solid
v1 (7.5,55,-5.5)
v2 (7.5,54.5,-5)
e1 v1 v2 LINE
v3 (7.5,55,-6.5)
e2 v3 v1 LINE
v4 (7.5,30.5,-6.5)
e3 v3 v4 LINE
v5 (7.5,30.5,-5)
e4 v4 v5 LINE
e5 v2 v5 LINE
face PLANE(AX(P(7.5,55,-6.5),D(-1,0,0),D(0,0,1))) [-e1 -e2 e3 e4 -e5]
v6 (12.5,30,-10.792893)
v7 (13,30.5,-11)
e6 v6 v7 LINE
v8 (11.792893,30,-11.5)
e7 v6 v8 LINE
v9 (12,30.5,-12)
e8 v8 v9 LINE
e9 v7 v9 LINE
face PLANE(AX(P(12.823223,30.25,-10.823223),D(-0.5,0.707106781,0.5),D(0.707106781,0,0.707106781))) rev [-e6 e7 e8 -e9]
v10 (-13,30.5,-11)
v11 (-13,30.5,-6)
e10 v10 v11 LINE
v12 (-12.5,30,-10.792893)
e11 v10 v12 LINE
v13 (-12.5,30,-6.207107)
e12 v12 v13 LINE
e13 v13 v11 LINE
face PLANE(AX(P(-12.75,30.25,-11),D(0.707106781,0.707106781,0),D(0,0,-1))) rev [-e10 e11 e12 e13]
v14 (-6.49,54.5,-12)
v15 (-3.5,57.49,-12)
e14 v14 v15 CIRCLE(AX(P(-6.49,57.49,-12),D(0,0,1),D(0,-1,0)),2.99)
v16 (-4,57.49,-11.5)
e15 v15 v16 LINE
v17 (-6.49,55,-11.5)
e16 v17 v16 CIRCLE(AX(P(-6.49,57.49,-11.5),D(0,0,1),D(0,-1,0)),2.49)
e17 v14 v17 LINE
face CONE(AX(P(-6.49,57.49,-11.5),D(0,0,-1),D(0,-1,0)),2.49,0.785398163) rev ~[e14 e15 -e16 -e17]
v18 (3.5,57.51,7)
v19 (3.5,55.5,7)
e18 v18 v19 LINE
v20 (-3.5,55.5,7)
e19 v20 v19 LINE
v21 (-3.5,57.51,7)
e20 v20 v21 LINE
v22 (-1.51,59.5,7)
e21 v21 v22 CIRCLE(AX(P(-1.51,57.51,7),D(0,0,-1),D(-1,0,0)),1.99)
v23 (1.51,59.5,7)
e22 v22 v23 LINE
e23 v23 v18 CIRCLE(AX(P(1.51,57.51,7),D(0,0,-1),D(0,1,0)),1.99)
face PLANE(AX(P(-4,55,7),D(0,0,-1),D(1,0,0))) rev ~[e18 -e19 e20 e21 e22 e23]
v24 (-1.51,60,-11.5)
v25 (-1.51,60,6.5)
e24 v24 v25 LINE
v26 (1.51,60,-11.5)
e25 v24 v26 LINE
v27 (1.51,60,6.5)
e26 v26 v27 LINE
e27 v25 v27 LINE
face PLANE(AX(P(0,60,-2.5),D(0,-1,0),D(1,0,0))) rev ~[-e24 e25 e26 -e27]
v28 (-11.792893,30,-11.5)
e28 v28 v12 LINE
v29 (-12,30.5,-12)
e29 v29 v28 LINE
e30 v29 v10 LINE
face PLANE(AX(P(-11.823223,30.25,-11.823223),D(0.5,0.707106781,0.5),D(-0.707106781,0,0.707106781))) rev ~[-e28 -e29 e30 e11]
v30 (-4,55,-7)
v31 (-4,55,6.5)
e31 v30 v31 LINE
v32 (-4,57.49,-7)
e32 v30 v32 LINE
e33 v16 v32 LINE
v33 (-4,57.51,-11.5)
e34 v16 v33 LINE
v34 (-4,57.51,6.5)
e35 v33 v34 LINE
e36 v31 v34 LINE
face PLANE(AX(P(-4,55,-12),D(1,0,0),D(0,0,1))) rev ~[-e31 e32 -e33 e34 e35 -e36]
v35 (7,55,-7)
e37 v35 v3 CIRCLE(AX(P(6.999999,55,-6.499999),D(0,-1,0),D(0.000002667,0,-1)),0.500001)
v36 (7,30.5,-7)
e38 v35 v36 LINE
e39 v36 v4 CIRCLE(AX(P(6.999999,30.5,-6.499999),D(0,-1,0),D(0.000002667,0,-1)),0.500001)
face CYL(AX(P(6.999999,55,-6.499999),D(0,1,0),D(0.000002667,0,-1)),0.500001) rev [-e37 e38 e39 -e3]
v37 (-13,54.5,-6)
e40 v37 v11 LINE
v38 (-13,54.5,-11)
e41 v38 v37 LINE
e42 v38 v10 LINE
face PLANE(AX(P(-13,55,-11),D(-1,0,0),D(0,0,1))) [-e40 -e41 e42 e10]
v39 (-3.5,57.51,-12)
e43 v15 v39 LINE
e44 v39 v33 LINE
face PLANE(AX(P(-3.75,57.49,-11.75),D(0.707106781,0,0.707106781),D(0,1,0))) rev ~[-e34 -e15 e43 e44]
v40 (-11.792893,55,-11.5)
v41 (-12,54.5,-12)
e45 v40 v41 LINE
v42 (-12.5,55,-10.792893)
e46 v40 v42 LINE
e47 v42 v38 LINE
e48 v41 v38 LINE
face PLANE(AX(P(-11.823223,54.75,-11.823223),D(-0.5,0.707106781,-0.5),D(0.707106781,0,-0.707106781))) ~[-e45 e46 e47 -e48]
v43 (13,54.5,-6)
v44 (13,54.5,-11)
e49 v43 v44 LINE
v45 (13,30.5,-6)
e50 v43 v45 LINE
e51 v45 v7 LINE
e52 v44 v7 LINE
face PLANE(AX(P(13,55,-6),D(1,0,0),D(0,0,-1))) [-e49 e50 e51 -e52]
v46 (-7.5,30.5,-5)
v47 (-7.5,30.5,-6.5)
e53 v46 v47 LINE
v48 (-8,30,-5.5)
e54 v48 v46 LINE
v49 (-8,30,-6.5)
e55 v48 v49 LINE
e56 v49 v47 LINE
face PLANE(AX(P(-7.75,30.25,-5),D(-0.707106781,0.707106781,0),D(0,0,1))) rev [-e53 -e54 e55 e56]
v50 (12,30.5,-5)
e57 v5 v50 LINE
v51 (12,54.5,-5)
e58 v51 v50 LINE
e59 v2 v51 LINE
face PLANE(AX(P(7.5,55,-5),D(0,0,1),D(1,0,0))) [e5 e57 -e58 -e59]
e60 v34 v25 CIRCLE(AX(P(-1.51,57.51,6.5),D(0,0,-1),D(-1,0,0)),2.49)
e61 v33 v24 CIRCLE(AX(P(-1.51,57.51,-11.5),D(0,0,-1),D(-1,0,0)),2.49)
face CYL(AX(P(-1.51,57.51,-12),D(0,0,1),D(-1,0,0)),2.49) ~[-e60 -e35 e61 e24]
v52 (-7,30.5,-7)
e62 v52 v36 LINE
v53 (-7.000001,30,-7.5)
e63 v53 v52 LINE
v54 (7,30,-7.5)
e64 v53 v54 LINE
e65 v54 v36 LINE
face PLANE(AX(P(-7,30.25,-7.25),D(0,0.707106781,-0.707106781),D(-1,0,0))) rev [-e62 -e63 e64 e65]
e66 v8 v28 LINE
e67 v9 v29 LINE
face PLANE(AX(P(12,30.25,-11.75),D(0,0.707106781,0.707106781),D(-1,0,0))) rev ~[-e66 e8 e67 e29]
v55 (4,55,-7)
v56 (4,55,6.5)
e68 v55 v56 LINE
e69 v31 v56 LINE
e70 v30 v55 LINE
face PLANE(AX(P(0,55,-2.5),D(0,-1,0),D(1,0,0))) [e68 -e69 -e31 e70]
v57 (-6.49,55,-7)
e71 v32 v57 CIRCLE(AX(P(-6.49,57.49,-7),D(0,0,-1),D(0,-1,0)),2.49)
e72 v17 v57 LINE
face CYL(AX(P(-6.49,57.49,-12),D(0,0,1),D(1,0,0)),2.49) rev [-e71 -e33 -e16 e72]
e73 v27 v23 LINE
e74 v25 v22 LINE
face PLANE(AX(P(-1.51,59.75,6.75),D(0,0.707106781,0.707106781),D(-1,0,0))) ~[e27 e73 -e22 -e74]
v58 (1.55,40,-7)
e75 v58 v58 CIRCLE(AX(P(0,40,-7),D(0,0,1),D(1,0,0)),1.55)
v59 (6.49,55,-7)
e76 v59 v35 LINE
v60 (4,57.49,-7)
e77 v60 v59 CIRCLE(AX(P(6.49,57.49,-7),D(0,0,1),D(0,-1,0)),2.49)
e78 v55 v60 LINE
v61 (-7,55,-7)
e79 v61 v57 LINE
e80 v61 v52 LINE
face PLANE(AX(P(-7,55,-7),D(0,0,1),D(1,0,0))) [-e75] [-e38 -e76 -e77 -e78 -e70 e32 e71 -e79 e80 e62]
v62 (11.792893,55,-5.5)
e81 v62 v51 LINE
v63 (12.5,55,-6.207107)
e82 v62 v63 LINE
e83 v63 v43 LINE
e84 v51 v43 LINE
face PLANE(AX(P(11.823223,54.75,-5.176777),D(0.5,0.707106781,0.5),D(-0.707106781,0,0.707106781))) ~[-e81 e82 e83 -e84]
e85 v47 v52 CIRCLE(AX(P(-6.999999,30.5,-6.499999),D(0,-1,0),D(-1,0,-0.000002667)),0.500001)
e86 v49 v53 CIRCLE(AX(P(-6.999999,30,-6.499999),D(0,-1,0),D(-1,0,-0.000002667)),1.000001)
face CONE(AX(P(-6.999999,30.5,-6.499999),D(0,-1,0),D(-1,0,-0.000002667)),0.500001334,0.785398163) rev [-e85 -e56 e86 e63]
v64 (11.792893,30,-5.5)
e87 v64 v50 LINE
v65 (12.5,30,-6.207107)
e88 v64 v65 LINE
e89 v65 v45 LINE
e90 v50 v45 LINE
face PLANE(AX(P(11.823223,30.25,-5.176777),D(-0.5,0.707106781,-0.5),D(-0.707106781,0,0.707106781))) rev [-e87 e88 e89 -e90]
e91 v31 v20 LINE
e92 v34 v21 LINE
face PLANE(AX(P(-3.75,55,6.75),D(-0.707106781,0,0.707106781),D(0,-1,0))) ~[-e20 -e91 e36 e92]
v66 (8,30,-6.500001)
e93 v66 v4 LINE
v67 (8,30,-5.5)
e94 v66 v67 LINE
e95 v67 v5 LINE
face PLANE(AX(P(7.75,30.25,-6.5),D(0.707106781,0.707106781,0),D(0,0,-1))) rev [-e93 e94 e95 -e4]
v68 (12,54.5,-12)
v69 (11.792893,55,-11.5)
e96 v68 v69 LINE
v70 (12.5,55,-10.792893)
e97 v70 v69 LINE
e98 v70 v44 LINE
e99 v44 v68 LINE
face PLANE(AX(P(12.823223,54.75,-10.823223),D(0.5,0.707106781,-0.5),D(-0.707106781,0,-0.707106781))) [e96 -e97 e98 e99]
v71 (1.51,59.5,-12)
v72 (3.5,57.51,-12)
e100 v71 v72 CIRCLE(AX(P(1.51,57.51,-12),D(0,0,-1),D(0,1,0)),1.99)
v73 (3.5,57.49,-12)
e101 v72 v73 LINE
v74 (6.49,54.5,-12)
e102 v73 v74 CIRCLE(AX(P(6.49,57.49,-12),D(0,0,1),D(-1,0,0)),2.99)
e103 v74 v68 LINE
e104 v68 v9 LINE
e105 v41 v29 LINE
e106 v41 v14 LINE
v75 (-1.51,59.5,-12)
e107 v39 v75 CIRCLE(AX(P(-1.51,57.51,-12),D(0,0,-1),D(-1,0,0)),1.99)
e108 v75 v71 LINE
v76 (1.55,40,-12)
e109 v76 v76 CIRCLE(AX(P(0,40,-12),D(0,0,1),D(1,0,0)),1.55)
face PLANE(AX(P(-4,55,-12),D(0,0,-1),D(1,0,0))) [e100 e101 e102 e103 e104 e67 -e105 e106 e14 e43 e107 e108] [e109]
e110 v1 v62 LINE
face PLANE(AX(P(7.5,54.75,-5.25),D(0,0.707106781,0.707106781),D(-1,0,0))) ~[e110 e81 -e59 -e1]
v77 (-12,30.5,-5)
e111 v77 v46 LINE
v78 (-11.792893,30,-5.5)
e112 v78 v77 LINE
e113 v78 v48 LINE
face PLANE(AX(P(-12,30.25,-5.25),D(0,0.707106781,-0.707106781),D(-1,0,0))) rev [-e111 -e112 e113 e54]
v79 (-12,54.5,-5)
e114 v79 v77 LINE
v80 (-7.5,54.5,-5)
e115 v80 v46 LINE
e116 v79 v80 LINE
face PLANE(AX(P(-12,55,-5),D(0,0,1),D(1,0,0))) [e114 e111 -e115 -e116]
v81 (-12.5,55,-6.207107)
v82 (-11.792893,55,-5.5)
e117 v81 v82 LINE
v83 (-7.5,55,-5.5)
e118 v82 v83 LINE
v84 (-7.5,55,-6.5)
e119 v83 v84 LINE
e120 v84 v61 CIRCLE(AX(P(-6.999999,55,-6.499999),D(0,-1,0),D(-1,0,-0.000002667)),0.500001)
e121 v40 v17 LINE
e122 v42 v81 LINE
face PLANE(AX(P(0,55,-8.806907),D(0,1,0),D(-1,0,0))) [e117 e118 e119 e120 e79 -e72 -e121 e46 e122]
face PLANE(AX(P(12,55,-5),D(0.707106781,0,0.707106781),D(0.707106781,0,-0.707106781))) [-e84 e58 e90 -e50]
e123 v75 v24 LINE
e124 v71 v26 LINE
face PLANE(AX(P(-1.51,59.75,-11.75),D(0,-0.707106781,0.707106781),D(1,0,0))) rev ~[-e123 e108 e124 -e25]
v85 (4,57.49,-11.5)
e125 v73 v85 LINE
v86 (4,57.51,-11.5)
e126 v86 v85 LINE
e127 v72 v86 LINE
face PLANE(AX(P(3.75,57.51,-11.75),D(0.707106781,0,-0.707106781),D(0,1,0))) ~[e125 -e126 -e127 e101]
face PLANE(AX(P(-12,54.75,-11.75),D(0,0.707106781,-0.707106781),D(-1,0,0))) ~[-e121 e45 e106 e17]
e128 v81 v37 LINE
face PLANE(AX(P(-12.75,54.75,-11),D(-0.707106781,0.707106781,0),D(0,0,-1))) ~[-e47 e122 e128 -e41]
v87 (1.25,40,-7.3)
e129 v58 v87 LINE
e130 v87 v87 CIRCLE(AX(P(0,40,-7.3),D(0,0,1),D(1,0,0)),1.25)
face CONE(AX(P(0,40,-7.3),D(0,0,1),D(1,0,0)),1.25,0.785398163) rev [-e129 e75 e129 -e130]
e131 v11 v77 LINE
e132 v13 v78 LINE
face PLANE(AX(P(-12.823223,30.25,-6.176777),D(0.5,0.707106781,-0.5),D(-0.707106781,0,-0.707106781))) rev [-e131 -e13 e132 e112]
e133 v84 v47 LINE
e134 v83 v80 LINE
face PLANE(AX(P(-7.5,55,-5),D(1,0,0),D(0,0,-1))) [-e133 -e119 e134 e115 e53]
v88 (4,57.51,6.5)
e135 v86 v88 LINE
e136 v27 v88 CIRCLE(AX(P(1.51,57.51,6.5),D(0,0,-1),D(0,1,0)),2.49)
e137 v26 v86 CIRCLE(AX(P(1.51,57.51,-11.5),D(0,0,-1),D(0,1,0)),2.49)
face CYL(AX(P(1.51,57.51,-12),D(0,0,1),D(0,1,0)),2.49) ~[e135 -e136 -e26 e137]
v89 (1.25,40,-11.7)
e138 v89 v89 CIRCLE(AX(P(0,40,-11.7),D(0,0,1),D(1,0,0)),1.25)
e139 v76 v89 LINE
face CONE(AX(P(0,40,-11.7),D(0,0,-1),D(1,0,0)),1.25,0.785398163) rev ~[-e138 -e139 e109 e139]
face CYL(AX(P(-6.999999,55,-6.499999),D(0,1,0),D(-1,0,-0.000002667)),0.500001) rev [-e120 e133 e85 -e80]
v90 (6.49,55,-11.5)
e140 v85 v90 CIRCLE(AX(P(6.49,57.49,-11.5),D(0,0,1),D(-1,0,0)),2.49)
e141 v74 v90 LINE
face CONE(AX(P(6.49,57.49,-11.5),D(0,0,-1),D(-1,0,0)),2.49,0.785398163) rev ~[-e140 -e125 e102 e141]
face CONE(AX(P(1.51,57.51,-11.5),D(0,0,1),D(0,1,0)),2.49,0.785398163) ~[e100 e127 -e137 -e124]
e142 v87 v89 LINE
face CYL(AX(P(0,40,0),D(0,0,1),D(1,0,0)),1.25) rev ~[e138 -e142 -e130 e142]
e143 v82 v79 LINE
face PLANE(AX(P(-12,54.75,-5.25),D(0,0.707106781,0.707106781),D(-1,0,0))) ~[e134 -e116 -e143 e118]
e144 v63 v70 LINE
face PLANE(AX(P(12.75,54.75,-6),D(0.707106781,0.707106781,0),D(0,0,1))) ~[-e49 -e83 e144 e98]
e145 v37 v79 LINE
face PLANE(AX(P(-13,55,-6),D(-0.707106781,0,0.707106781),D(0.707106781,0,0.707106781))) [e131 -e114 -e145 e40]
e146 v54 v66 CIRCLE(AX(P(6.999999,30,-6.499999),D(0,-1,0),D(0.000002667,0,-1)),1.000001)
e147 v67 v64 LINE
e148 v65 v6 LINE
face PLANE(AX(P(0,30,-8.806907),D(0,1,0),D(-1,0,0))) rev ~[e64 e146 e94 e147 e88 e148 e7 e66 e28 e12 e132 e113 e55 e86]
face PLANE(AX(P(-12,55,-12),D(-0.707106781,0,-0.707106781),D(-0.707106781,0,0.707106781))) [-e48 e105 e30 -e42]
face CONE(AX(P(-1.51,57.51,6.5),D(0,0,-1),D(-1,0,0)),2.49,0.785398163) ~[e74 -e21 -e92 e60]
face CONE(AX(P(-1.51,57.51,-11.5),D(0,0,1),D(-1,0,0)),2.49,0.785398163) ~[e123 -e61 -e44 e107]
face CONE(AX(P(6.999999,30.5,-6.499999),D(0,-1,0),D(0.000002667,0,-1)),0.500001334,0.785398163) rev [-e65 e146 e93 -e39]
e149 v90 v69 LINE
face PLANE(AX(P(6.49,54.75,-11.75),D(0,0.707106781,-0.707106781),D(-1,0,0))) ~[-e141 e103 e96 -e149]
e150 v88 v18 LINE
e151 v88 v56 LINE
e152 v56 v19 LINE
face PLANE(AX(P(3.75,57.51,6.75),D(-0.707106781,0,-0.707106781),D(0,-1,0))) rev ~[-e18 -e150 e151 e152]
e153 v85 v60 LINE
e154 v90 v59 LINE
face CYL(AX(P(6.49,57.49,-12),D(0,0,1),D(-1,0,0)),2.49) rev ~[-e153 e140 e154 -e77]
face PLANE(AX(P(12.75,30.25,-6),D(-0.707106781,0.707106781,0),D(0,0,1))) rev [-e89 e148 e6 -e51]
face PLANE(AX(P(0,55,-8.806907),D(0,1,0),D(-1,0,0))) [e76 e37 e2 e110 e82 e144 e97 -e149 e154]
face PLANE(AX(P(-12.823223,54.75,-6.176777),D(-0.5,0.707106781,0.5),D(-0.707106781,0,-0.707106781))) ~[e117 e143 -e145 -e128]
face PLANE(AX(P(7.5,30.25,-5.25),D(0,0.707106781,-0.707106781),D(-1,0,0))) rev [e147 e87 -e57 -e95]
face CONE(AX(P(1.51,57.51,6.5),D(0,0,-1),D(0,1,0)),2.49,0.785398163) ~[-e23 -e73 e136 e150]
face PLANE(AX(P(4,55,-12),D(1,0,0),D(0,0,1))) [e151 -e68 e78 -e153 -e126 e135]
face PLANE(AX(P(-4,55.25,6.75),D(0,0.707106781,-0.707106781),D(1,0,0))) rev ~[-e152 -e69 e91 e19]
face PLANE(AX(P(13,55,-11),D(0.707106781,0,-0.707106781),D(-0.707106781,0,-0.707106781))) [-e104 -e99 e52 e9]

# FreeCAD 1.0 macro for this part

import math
import FreeCAD as App
import Part
import Sketcher

V = App.Vector
Q = App.Units.Quantity


def edges_at(feature, points):
    """Names of the edges that pass closest to the given points."""
    edges = feature.Shape.Edges
    near = lambda p: min(range(len(edges)), key=lambda i: edges[i].distToShape(Part.Vertex(*p))[0])
    return sorted({f"Edge{near(p) + 1}" for p in points})

doc = App.newDocument("Part")
params = doc.addObject("Spreadsheet::Sheet", "Params")
for row, (alias, value) in enumerate([
    ("sketch1_radius", "0.500001 mm"),
    ("sketch1_width", "24 mm"),
    ("sketch1_width2", "14 mm"),
    ("sketch1_height", "5 mm"),
    ("sketch1_width3", "4.5 mm"),
    ("pad1_length", "25 mm"),
    ("sketch2_width", "8 mm"),
    ("sketch2_height", "19 mm"),
    ("pad2_length", "5 mm"),
    ("sketch3_diameter", "2.5 mm"),
    ("fillet_radius", "2.49 mm"),
    ("chamfer_size", "0.3 mm"),
    ("chamfer2_size", "0.5 mm"),
], start=1):
    params.set(f"A{row}", alias)
    params.set(f"B{row}", "=" + value)
    params.setAlias(f"B{row}", alias)

body = doc.addObject("PartDesign::Body", "Body")

# Sketch on XZ plane
sketch1 = doc.addObject("Sketcher::SketchObject", "Sketch")
body.addObject(sketch1)
sketch1.AttachmentSupport = (doc.XZ_Plane, [""])
sketch1.MapMode = "FlatFace"
sketch1.addGeometry([
    Part.LineSegment(V(-7.5, -6.5, 0), V(-7.5, -5, 0)),  # 0
    Part.LineSegment(V(-7.5, -5, 0), V(-12, -5, 0)),  # 1
    Part.LineSegment(V(-12, -5, 0), V(-13, -6, 0)),  # 2
    Part.LineSegment(V(-13, -6, 0), V(-13, -11, 0)),  # 3
    Part.LineSegment(V(-13, -11, 0), V(-12, -12, 0)),  # 4
    Part.LineSegment(V(-12, -12, 0), V(12, -12, 0)),  # 5
    Part.LineSegment(V(12, -12, 0), V(13, -11, 0)),  # 6
    Part.LineSegment(V(13, -11, 0), V(13, -6, 0)),  # 7
    Part.LineSegment(V(13, -6, 0), V(12, -5, 0)),  # 8
    Part.LineSegment(V(12, -5, 0), V(7.5, -5, 0)),  # 9
    Part.LineSegment(V(7.5, -5, 0), V(7.5, -6.5, 0)),  # 10
    Part.ArcOfCircle(Part.Circle(V(6.999999, -6.499999, 0), V(0, 0, 1), 0.500001), math.radians(-89.999847), math.radians(-0.000153)),  # 11
    Part.LineSegment(V(7, -7, 0), V(-7, -7, 0)),  # 12
    Part.ArcOfCircle(Part.Circle(V(-6.999999, -6.499999, 0), V(0, 0, 1), 0.500001), math.radians(-179.999847), math.radians(-90.000153)),  # 13
], False)
sketch1.addConstraint([
    Sketcher.Constraint("Coincident", 0, 2, 1, 1),
    Sketcher.Constraint("Coincident", 1, 2, 2, 1),
    Sketcher.Constraint("Coincident", 2, 2, 3, 1),
    Sketcher.Constraint("Coincident", 3, 2, 4, 1),
    Sketcher.Constraint("Coincident", 4, 2, 5, 1),
    Sketcher.Constraint("Coincident", 5, 2, 6, 1),
    Sketcher.Constraint("Coincident", 6, 2, 7, 1),
    Sketcher.Constraint("Coincident", 7, 2, 8, 1),
    Sketcher.Constraint("Coincident", 8, 2, 9, 1),
    Sketcher.Constraint("Coincident", 9, 2, 10, 1),
    Sketcher.Constraint("Coincident", 10, 2, 11, 2),
    Sketcher.Constraint("Coincident", 11, 1, 12, 1),
    Sketcher.Constraint("Coincident", 12, 2, 13, 2),
    Sketcher.Constraint("Coincident", 13, 1, 0, 1),
    Sketcher.Constraint("Vertical", 0),
    Sketcher.Constraint("Horizontal", 1),
    Sketcher.Constraint("Vertical", 3),
    Sketcher.Constraint("Horizontal", 5),
    Sketcher.Constraint("Vertical", 7),
    Sketcher.Constraint("Horizontal", 9),
    Sketcher.Constraint("Vertical", 10),
    Sketcher.Constraint("Horizontal", 12),
    Sketcher.Constraint("Equal", 11, 13),
    Sketcher.Constraint("Symmetric", 3, 2, 6, 2, -2),
    Sketcher.Constraint("Symmetric", 1, 2, 8, 2, -2),
    Sketcher.Constraint("Symmetric", 10, 2, 13, 1, -2),
    Sketcher.Constraint("Perpendicular", 2, 4),
    Sketcher.Constraint("Perpendicular", 4, 6),
    Sketcher.Constraint("Perpendicular", 6, 8),
    Sketcher.Constraint("Horizontal", 2, 2, 7, 2),
    Sketcher.Constraint("Horizontal", 13, 3, 10, 2),
    Sketcher.Constraint("Vertical", 1, 2, 4, 2),
    Sketcher.Constraint("Vertical", 13, 3, 12, 2),
    Sketcher.Constraint("Radius", 11, Q("0.500001 mm")),
    Sketcher.Constraint("DistanceX", 5, 1, 5, 2, Q("24 mm")),
    Sketcher.Constraint("DistanceX", 12, 2, 12, 1, Q("14 mm")),
    Sketcher.Constraint("DistanceY", 3, 2, 3, 1, Q("5 mm")),
    Sketcher.Constraint("DistanceX", 1, 2, 1, 1, Q("4.5 mm")),
    Sketcher.Constraint("DistanceY", 0, 1, 0, 2, Q("1.5 mm")),
    Sketcher.Constraint("DistanceY", 0, 2, -1, 1, Q("5 mm")),
    Sketcher.Constraint("DistanceX", 2, 2, -1, 1, Q("13 mm")),
])
sketch1.setExpression("Constraints[33]", "Params.sketch1_radius")
sketch1.setExpression("Constraints[34]", "Params.sketch1_width")
sketch1.setExpression("Constraints[35]", "Params.sketch1_width2")
sketch1.setExpression("Constraints[36]", "Params.sketch1_height")
sketch1.setExpression("Constraints[37]", "Params.sketch1_width3")
pad1 = doc.addObject("PartDesign::Pad", "Pad")
body.addObject(pad1)
pad1.Profile = sketch1
pad1.setExpression("Length", "Params.pad1_length")

# Sketch on XZ plane
sketch2 = doc.addObject("Sketcher::SketchObject", "Sketch001")
body.addObject(sketch2)
sketch2.AttachmentSupport = (doc.XZ_Plane, [""])
sketch2.MapMode = "FlatFace"
sketch2.addGeometry([
    Part.LineSegment(V(-4, 7, 0), V(-4, -12, 0)),
    Part.LineSegment(V(-4, -12, 0), V(4, -12, 0)),
    Part.LineSegment(V(4, -12, 0), V(4, 7, 0)),
    Part.LineSegment(V(4, 7, 0), V(-4, 7, 0)),
], False)
sketch2.addConstraint([
    Sketcher.Constraint("Coincident", 0, 2, 1, 1),
    Sketcher.Constraint("Coincident", 1, 2, 2, 1),
    Sketcher.Constraint("Coincident", 2, 2, 3, 1),
    Sketcher.Constraint("Coincident", 3, 2, 0, 1),
    Sketcher.Constraint("Vertical", 0),
    Sketcher.Constraint("Horizontal", 1),
    Sketcher.Constraint("Vertical", 2),
    Sketcher.Constraint("Horizontal", 3),
    Sketcher.Constraint("DistanceX", 1, 1, 1, 2, Q("8 mm")),
    Sketcher.Constraint("DistanceY", 0, 2, 0, 1, Q("19 mm")),
    Sketcher.Constraint("DistanceX", 0, 2, -1, 1, Q("4 mm")),
    Sketcher.Constraint("DistanceY", 0, 2, -1, 1, Q("12 mm")),
])
sketch2.setExpression("Constraints[8]", "Params.sketch2_width")
sketch2.setExpression("Constraints[9]", "Params.sketch2_height")
pad2 = doc.addObject("PartDesign::Pad", "Pad001")
body.addObject(pad2)
pad2.Profile = sketch2
pad2.setExpression("Length", "Params.pad2_length")
pad2.Reversed = True

# Sketch on XY plane
sketch3 = doc.addObject("Sketcher::SketchObject", "Sketch002")
body.addObject(sketch3)
sketch3.AttachmentSupport = (doc.XY_Plane, [""])
sketch3.MapMode = "FlatFace"
sketch3.addGeometry(Part.Circle(V(0, -15, 0), V(0, 0, 1), 1.25), False)
sketch3.addConstraint([
    Sketcher.Constraint("PointOnObject", 0, 3, -2),
    Sketcher.Constraint("Diameter", 0, Q("2.5 mm")),
    Sketcher.Constraint("DistanceY", 0, 3, -1, 1, Q("15 mm")),
])
sketch3.setExpression("Constraints[1]", "Params.sketch3_diameter")
pocket1 = doc.addObject("PartDesign::Pocket", "Pocket")
body.addObject(pocket1)
pocket1.Profile = sketch3
pocket1.Type = "ThroughAll"
doc.recompute()

fillet = doc.addObject("PartDesign::Fillet", "Fillet")
body.addObject(fillet)
fillet.Base = (pocket1, edges_at(pocket1, [
    (4, 0, -9.5),
    (-4, 0, -9.5),
    (-4, 5, -2.5),
    (4, 5, -2.5),
]))
fillet.setExpression("Radius", "Params.fillet_radius")
doc.recompute()

chamfer = doc.addObject("PartDesign::Chamfer", "Chamfer")
body.addObject(chamfer)
chamfer.Base = (fillet, edges_at(fillet, [(-1.25, -15, -7), (-1.25, -15, -12)]))
chamfer.setExpression("Size", "Params.chamfer_size")
doc.recompute()

chamfer2 = doc.addObject("PartDesign::Chamfer", "Chamfer001")
body.addObject(chamfer2)
chamfer2.Base = (chamfer, edges_at(chamfer, [
    (-7.5, -25, -5.75),
    (-7.354, -25, -6.854),
    (0, -25, -7),
    (7.354, -25, -6.854),
    (7.5, -25, -5.75),
    (9.75, -25, -5),
    (12.5, -25, -5.5),
    (13, -25, -8.5),
    (12.5, -25, -11.5),
    (0, -25, -12),
    (-12.5, -25, -11.5),
    (-13, -25, -8.5),
    (-12.5, -25, -5.5),
    (-9.75, -25, -5),
    (-4, 1.255, 7),
    (-3.271, 4.271, 7),
    (0, 0, 7),
    (0, 5, 7),
    (4, 1.255, 7),
    (3.271, 4.271, 7),
    (13, 0, -8.5),
    (12.5, 0, -5.5),
    (12.5, 0, -11.5),
    (9.75, 0, -5),
    (-9.75, 0, -5),
    (-12.5, 0, -5.5),
    (-13, 0, -8.5),
    (-12.5, 0, -11.5),
    (0, 5, -12),
]))
chamfer2.setExpression("Size", "Params.chamfer2_size")
body2 = doc.addObject("PartDesign::Body", "Body001")
doc.recompute()

body.Placement = App.Placement(V(0, 55, 0), App.Rotation(V(0, 0, 1), 0))
boolean = doc.addObject("PartDesign::Boolean", "Boolean")
body2.addObject(boolean)
boolean.Type = "Fuse"
boolean.addObjects([body])

doc.recompute()
